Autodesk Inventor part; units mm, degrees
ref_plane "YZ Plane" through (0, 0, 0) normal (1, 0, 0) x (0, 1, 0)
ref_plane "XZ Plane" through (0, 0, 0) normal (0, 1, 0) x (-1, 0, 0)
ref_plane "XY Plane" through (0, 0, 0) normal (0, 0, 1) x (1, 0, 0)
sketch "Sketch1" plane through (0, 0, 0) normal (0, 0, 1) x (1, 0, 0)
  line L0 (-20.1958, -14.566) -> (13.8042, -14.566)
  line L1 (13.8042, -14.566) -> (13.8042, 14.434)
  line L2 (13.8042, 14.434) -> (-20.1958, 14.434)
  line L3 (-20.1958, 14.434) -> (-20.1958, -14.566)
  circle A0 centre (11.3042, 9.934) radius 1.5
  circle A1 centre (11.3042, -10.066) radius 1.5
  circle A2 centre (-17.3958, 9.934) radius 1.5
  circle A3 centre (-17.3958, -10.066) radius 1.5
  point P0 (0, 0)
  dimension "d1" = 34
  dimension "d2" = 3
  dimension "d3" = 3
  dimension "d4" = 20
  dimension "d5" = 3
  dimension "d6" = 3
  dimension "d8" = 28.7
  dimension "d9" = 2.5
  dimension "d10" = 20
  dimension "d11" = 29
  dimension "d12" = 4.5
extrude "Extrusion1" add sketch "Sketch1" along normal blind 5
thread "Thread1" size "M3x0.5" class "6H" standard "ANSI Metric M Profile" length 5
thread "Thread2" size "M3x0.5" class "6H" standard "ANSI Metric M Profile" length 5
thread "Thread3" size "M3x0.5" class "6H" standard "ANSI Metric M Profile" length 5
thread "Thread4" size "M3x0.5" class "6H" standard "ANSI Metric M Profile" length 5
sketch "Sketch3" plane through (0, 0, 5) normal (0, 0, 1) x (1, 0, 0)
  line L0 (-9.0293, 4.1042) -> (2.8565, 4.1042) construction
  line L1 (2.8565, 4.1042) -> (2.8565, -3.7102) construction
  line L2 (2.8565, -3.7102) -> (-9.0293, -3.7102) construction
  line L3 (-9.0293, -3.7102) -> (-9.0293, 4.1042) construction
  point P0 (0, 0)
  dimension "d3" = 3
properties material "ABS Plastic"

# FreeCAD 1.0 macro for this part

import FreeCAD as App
import Part
import Sketcher

doc = App.newDocument("Part")
params = doc.addObject("Spreadsheet::Sheet", "Params")
for row, (alias, value) in enumerate([
    ("sketch1_diameter", "3 mm"),
    ("sketch1_width", "34 mm"),
    ("sketch1_height", "29 mm"),
    ("pad1_length", "5 mm"),
], start=1):
    params.set(f"A{row}", alias)
    params.set(f"B{row}", "=" + value)
    params.setAlias(f"B{row}", alias)

body = doc.addObject("PartDesign::Body", "Body")

sketch1 = doc.addObject("Sketcher::SketchObject", "Sketch")
body.addObject(sketch1)
sketch1.AttachmentSupport = (doc.XY_Plane, [""])
sketch1.MapMode = "FlatFace"
sketch1.addGeometry([
    Part.LineSegment(App.Vector(-20.2, 14.4, 0), App.Vector(-20.2, -14.6, 0)),
    Part.LineSegment(App.Vector(-20.2, -14.6, 0), App.Vector(13.8, -14.6, 0)),
    Part.LineSegment(App.Vector(13.8, -14.6, 0), App.Vector(13.8, 14.4, 0)),
    Part.LineSegment(App.Vector(13.8, 14.4, 0), App.Vector(-20.2, 14.4, 0)),
    Part.Circle(App.Vector(-17.4, -10.1, 0), App.Vector(0, 0, 1), 1.5),
    Part.Circle(App.Vector(11.3, -10.1, 0), App.Vector(0, 0, 1), 1.5),
    Part.Circle(App.Vector(-17.4, 9.9, 0), App.Vector(0, 0, 1), 1.5),
    Part.Circle(App.Vector(11.3, 9.9, 0), App.Vector(0, 0, 1), 1.5),
], False)
sketch1.addConstraint([
    Sketcher.Constraint("Coincident", 0, 2, 1, 1),
    Sketcher.Constraint("Coincident", 1, 2, 2, 1),
    Sketcher.Constraint("Coincident", 2, 2, 3, 1),
    Sketcher.Constraint("Coincident", 3, 2, 0, 1),
    Sketcher.Constraint("Vertical", 0),
    Sketcher.Constraint("Horizontal", 1),
    Sketcher.Constraint("Vertical", 2),
    Sketcher.Constraint("Horizontal", 3),
    Sketcher.Constraint("Equal", 4, 5),
    Sketcher.Constraint("Equal", 5, 6),
    Sketcher.Constraint("Equal", 6, 7),
    Sketcher.Constraint("Horizontal", 4, 3, 5, 3),
    Sketcher.Constraint("Horizontal", 6, 3, 7, 3),
    Sketcher.Constraint("Vertical", 4, 3, 6, 3),
    Sketcher.Constraint("Vertical", 5, 3, 7, 3),
    Sketcher.Constraint("Diameter", 4, 3.0),
    Sketcher.Constraint("DistanceX", 1, 1, 1, 2, 34.0),
    Sketcher.Constraint("DistanceY", 0, 2, 0, 1, 29.0),
    Sketcher.Constraint("DistanceY", 4, 3, 6, 3, 20.0),
    Sketcher.Constraint("DistanceX", 4, 3, 5, 3, 28.7),
    Sketcher.Constraint("DistanceY", 0, 2, 4, 3, 4.5),
    Sketcher.Constraint("DistanceX", 5, 3, 1, 2, 2.5),
    Sketcher.Constraint("DistanceY", 4, 3, -1, 1, 10.066),
    Sketcher.Constraint("DistanceX", 4, 3, -1, 1, 17.3958),
])
sketch1.setExpression("Constraints[15]", "Params.sketch1_diameter")
sketch1.setExpression("Constraints[16]", "Params.sketch1_width")
sketch1.setExpression("Constraints[17]", "Params.sketch1_height")
pad1 = doc.addObject("PartDesign::Pad", "Pad")
body.addObject(pad1)
pad1.Profile = sketch1
pad1.setExpression("Length", "Params.pad1_length")

doc.recompute()
